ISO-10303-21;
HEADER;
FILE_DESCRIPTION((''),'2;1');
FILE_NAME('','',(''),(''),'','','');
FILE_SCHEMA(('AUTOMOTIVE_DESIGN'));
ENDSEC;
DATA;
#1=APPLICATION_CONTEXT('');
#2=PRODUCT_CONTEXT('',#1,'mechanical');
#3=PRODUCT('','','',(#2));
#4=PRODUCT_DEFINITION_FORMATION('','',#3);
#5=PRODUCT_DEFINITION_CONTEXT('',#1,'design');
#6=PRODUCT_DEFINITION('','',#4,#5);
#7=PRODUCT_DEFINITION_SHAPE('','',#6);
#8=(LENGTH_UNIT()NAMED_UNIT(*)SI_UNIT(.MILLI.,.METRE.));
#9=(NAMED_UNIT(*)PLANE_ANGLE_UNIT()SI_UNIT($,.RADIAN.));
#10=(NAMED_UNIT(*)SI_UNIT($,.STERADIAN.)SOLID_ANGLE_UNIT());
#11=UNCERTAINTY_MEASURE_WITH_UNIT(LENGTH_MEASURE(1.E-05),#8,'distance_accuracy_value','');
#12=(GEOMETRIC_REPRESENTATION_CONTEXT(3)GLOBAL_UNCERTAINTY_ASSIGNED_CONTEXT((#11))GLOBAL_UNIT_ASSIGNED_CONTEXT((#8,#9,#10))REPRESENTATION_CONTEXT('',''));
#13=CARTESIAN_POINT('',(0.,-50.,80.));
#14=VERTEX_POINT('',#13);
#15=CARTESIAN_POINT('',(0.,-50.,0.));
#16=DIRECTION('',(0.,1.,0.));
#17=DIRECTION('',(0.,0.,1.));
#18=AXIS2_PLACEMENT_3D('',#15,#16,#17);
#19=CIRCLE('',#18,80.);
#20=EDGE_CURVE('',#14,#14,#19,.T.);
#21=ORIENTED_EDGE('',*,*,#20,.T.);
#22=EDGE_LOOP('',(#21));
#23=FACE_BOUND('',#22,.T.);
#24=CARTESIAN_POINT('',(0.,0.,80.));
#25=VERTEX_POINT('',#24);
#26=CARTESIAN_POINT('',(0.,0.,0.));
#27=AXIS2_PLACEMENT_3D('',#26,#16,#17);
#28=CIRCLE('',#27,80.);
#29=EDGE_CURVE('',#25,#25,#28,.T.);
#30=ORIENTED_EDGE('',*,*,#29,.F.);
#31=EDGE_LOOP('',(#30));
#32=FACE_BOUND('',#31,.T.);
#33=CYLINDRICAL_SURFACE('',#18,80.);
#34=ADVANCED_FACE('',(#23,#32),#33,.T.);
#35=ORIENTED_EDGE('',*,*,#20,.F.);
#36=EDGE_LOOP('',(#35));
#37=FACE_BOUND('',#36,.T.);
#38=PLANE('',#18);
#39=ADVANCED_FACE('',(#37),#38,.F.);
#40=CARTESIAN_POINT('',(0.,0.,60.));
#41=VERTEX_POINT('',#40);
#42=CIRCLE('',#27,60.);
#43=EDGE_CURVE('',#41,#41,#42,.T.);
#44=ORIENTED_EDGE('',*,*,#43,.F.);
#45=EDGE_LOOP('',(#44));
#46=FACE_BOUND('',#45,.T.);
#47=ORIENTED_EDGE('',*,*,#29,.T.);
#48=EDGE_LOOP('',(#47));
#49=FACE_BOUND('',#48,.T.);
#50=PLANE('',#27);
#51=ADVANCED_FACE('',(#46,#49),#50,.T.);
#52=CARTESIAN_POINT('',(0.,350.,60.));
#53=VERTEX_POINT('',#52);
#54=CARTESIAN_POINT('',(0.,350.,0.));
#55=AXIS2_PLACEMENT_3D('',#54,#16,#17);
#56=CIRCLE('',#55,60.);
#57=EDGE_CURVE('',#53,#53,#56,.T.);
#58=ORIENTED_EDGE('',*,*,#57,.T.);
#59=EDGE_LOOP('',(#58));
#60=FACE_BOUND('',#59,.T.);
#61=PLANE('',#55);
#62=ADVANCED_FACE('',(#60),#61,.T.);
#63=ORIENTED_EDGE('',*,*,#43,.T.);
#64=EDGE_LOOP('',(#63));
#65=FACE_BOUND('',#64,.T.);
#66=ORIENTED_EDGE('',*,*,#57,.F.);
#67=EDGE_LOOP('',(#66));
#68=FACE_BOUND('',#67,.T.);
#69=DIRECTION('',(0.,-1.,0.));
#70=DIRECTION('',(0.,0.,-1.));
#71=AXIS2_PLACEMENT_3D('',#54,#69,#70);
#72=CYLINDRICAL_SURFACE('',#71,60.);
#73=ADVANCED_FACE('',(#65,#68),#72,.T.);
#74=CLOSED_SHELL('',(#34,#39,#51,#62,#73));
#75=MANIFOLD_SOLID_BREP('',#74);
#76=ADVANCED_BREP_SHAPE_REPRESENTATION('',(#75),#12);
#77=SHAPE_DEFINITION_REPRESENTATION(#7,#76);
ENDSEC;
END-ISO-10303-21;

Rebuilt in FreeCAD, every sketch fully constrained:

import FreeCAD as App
import Part
import Sketcher

V = App.Vector
Q = App.Units.Quantity

doc = App.newDocument("Part")
body = doc.addObject("PartDesign::Body", "Body")

# Sketch on XZ plane
sketch1 = body.newObject("Sketcher::SketchObject", "Sketch")
sketch1.AttachmentSupport = (doc.getObject("XZ_Plane"), [""])
sketch1.MapMode = "FlatFace"
sketch1.addGeometry(Part.Circle(V(0, 0, 0), V(0, 0, 1), 80), False)
sketch1.addConstraint(Sketcher.Constraint("Coincident", 0, 3, -1, 1))
sketch1.addConstraint(Sketcher.Constraint("Diameter", 0, Q("160 mm")))
pad1 = body.newObject("PartDesign::Pad", "Pad")
pad1.Profile = sketch1
pad1.Length = 50

# Sketch on XZ plane
sketch2 = body.newObject("Sketcher::SketchObject", "Sketch001")
sketch2.AttachmentSupport = (doc.getObject("XZ_Plane"), [""])
sketch2.MapMode = "FlatFace"
sketch2.addGeometry(Part.Circle(V(0, 0, 0), V(0, 0, 1), 60), False)
sketch2.addConstraint(Sketcher.Constraint("Coincident", 0, 3, -1, 1))
sketch2.addConstraint(Sketcher.Constraint("Diameter", 0, Q("120 mm")))
pad2 = body.newObject("PartDesign::Pad", "Pad001")
pad2.Profile = sketch2
pad2.Length = 350
pad2.Reversed = True

doc.recompute()
